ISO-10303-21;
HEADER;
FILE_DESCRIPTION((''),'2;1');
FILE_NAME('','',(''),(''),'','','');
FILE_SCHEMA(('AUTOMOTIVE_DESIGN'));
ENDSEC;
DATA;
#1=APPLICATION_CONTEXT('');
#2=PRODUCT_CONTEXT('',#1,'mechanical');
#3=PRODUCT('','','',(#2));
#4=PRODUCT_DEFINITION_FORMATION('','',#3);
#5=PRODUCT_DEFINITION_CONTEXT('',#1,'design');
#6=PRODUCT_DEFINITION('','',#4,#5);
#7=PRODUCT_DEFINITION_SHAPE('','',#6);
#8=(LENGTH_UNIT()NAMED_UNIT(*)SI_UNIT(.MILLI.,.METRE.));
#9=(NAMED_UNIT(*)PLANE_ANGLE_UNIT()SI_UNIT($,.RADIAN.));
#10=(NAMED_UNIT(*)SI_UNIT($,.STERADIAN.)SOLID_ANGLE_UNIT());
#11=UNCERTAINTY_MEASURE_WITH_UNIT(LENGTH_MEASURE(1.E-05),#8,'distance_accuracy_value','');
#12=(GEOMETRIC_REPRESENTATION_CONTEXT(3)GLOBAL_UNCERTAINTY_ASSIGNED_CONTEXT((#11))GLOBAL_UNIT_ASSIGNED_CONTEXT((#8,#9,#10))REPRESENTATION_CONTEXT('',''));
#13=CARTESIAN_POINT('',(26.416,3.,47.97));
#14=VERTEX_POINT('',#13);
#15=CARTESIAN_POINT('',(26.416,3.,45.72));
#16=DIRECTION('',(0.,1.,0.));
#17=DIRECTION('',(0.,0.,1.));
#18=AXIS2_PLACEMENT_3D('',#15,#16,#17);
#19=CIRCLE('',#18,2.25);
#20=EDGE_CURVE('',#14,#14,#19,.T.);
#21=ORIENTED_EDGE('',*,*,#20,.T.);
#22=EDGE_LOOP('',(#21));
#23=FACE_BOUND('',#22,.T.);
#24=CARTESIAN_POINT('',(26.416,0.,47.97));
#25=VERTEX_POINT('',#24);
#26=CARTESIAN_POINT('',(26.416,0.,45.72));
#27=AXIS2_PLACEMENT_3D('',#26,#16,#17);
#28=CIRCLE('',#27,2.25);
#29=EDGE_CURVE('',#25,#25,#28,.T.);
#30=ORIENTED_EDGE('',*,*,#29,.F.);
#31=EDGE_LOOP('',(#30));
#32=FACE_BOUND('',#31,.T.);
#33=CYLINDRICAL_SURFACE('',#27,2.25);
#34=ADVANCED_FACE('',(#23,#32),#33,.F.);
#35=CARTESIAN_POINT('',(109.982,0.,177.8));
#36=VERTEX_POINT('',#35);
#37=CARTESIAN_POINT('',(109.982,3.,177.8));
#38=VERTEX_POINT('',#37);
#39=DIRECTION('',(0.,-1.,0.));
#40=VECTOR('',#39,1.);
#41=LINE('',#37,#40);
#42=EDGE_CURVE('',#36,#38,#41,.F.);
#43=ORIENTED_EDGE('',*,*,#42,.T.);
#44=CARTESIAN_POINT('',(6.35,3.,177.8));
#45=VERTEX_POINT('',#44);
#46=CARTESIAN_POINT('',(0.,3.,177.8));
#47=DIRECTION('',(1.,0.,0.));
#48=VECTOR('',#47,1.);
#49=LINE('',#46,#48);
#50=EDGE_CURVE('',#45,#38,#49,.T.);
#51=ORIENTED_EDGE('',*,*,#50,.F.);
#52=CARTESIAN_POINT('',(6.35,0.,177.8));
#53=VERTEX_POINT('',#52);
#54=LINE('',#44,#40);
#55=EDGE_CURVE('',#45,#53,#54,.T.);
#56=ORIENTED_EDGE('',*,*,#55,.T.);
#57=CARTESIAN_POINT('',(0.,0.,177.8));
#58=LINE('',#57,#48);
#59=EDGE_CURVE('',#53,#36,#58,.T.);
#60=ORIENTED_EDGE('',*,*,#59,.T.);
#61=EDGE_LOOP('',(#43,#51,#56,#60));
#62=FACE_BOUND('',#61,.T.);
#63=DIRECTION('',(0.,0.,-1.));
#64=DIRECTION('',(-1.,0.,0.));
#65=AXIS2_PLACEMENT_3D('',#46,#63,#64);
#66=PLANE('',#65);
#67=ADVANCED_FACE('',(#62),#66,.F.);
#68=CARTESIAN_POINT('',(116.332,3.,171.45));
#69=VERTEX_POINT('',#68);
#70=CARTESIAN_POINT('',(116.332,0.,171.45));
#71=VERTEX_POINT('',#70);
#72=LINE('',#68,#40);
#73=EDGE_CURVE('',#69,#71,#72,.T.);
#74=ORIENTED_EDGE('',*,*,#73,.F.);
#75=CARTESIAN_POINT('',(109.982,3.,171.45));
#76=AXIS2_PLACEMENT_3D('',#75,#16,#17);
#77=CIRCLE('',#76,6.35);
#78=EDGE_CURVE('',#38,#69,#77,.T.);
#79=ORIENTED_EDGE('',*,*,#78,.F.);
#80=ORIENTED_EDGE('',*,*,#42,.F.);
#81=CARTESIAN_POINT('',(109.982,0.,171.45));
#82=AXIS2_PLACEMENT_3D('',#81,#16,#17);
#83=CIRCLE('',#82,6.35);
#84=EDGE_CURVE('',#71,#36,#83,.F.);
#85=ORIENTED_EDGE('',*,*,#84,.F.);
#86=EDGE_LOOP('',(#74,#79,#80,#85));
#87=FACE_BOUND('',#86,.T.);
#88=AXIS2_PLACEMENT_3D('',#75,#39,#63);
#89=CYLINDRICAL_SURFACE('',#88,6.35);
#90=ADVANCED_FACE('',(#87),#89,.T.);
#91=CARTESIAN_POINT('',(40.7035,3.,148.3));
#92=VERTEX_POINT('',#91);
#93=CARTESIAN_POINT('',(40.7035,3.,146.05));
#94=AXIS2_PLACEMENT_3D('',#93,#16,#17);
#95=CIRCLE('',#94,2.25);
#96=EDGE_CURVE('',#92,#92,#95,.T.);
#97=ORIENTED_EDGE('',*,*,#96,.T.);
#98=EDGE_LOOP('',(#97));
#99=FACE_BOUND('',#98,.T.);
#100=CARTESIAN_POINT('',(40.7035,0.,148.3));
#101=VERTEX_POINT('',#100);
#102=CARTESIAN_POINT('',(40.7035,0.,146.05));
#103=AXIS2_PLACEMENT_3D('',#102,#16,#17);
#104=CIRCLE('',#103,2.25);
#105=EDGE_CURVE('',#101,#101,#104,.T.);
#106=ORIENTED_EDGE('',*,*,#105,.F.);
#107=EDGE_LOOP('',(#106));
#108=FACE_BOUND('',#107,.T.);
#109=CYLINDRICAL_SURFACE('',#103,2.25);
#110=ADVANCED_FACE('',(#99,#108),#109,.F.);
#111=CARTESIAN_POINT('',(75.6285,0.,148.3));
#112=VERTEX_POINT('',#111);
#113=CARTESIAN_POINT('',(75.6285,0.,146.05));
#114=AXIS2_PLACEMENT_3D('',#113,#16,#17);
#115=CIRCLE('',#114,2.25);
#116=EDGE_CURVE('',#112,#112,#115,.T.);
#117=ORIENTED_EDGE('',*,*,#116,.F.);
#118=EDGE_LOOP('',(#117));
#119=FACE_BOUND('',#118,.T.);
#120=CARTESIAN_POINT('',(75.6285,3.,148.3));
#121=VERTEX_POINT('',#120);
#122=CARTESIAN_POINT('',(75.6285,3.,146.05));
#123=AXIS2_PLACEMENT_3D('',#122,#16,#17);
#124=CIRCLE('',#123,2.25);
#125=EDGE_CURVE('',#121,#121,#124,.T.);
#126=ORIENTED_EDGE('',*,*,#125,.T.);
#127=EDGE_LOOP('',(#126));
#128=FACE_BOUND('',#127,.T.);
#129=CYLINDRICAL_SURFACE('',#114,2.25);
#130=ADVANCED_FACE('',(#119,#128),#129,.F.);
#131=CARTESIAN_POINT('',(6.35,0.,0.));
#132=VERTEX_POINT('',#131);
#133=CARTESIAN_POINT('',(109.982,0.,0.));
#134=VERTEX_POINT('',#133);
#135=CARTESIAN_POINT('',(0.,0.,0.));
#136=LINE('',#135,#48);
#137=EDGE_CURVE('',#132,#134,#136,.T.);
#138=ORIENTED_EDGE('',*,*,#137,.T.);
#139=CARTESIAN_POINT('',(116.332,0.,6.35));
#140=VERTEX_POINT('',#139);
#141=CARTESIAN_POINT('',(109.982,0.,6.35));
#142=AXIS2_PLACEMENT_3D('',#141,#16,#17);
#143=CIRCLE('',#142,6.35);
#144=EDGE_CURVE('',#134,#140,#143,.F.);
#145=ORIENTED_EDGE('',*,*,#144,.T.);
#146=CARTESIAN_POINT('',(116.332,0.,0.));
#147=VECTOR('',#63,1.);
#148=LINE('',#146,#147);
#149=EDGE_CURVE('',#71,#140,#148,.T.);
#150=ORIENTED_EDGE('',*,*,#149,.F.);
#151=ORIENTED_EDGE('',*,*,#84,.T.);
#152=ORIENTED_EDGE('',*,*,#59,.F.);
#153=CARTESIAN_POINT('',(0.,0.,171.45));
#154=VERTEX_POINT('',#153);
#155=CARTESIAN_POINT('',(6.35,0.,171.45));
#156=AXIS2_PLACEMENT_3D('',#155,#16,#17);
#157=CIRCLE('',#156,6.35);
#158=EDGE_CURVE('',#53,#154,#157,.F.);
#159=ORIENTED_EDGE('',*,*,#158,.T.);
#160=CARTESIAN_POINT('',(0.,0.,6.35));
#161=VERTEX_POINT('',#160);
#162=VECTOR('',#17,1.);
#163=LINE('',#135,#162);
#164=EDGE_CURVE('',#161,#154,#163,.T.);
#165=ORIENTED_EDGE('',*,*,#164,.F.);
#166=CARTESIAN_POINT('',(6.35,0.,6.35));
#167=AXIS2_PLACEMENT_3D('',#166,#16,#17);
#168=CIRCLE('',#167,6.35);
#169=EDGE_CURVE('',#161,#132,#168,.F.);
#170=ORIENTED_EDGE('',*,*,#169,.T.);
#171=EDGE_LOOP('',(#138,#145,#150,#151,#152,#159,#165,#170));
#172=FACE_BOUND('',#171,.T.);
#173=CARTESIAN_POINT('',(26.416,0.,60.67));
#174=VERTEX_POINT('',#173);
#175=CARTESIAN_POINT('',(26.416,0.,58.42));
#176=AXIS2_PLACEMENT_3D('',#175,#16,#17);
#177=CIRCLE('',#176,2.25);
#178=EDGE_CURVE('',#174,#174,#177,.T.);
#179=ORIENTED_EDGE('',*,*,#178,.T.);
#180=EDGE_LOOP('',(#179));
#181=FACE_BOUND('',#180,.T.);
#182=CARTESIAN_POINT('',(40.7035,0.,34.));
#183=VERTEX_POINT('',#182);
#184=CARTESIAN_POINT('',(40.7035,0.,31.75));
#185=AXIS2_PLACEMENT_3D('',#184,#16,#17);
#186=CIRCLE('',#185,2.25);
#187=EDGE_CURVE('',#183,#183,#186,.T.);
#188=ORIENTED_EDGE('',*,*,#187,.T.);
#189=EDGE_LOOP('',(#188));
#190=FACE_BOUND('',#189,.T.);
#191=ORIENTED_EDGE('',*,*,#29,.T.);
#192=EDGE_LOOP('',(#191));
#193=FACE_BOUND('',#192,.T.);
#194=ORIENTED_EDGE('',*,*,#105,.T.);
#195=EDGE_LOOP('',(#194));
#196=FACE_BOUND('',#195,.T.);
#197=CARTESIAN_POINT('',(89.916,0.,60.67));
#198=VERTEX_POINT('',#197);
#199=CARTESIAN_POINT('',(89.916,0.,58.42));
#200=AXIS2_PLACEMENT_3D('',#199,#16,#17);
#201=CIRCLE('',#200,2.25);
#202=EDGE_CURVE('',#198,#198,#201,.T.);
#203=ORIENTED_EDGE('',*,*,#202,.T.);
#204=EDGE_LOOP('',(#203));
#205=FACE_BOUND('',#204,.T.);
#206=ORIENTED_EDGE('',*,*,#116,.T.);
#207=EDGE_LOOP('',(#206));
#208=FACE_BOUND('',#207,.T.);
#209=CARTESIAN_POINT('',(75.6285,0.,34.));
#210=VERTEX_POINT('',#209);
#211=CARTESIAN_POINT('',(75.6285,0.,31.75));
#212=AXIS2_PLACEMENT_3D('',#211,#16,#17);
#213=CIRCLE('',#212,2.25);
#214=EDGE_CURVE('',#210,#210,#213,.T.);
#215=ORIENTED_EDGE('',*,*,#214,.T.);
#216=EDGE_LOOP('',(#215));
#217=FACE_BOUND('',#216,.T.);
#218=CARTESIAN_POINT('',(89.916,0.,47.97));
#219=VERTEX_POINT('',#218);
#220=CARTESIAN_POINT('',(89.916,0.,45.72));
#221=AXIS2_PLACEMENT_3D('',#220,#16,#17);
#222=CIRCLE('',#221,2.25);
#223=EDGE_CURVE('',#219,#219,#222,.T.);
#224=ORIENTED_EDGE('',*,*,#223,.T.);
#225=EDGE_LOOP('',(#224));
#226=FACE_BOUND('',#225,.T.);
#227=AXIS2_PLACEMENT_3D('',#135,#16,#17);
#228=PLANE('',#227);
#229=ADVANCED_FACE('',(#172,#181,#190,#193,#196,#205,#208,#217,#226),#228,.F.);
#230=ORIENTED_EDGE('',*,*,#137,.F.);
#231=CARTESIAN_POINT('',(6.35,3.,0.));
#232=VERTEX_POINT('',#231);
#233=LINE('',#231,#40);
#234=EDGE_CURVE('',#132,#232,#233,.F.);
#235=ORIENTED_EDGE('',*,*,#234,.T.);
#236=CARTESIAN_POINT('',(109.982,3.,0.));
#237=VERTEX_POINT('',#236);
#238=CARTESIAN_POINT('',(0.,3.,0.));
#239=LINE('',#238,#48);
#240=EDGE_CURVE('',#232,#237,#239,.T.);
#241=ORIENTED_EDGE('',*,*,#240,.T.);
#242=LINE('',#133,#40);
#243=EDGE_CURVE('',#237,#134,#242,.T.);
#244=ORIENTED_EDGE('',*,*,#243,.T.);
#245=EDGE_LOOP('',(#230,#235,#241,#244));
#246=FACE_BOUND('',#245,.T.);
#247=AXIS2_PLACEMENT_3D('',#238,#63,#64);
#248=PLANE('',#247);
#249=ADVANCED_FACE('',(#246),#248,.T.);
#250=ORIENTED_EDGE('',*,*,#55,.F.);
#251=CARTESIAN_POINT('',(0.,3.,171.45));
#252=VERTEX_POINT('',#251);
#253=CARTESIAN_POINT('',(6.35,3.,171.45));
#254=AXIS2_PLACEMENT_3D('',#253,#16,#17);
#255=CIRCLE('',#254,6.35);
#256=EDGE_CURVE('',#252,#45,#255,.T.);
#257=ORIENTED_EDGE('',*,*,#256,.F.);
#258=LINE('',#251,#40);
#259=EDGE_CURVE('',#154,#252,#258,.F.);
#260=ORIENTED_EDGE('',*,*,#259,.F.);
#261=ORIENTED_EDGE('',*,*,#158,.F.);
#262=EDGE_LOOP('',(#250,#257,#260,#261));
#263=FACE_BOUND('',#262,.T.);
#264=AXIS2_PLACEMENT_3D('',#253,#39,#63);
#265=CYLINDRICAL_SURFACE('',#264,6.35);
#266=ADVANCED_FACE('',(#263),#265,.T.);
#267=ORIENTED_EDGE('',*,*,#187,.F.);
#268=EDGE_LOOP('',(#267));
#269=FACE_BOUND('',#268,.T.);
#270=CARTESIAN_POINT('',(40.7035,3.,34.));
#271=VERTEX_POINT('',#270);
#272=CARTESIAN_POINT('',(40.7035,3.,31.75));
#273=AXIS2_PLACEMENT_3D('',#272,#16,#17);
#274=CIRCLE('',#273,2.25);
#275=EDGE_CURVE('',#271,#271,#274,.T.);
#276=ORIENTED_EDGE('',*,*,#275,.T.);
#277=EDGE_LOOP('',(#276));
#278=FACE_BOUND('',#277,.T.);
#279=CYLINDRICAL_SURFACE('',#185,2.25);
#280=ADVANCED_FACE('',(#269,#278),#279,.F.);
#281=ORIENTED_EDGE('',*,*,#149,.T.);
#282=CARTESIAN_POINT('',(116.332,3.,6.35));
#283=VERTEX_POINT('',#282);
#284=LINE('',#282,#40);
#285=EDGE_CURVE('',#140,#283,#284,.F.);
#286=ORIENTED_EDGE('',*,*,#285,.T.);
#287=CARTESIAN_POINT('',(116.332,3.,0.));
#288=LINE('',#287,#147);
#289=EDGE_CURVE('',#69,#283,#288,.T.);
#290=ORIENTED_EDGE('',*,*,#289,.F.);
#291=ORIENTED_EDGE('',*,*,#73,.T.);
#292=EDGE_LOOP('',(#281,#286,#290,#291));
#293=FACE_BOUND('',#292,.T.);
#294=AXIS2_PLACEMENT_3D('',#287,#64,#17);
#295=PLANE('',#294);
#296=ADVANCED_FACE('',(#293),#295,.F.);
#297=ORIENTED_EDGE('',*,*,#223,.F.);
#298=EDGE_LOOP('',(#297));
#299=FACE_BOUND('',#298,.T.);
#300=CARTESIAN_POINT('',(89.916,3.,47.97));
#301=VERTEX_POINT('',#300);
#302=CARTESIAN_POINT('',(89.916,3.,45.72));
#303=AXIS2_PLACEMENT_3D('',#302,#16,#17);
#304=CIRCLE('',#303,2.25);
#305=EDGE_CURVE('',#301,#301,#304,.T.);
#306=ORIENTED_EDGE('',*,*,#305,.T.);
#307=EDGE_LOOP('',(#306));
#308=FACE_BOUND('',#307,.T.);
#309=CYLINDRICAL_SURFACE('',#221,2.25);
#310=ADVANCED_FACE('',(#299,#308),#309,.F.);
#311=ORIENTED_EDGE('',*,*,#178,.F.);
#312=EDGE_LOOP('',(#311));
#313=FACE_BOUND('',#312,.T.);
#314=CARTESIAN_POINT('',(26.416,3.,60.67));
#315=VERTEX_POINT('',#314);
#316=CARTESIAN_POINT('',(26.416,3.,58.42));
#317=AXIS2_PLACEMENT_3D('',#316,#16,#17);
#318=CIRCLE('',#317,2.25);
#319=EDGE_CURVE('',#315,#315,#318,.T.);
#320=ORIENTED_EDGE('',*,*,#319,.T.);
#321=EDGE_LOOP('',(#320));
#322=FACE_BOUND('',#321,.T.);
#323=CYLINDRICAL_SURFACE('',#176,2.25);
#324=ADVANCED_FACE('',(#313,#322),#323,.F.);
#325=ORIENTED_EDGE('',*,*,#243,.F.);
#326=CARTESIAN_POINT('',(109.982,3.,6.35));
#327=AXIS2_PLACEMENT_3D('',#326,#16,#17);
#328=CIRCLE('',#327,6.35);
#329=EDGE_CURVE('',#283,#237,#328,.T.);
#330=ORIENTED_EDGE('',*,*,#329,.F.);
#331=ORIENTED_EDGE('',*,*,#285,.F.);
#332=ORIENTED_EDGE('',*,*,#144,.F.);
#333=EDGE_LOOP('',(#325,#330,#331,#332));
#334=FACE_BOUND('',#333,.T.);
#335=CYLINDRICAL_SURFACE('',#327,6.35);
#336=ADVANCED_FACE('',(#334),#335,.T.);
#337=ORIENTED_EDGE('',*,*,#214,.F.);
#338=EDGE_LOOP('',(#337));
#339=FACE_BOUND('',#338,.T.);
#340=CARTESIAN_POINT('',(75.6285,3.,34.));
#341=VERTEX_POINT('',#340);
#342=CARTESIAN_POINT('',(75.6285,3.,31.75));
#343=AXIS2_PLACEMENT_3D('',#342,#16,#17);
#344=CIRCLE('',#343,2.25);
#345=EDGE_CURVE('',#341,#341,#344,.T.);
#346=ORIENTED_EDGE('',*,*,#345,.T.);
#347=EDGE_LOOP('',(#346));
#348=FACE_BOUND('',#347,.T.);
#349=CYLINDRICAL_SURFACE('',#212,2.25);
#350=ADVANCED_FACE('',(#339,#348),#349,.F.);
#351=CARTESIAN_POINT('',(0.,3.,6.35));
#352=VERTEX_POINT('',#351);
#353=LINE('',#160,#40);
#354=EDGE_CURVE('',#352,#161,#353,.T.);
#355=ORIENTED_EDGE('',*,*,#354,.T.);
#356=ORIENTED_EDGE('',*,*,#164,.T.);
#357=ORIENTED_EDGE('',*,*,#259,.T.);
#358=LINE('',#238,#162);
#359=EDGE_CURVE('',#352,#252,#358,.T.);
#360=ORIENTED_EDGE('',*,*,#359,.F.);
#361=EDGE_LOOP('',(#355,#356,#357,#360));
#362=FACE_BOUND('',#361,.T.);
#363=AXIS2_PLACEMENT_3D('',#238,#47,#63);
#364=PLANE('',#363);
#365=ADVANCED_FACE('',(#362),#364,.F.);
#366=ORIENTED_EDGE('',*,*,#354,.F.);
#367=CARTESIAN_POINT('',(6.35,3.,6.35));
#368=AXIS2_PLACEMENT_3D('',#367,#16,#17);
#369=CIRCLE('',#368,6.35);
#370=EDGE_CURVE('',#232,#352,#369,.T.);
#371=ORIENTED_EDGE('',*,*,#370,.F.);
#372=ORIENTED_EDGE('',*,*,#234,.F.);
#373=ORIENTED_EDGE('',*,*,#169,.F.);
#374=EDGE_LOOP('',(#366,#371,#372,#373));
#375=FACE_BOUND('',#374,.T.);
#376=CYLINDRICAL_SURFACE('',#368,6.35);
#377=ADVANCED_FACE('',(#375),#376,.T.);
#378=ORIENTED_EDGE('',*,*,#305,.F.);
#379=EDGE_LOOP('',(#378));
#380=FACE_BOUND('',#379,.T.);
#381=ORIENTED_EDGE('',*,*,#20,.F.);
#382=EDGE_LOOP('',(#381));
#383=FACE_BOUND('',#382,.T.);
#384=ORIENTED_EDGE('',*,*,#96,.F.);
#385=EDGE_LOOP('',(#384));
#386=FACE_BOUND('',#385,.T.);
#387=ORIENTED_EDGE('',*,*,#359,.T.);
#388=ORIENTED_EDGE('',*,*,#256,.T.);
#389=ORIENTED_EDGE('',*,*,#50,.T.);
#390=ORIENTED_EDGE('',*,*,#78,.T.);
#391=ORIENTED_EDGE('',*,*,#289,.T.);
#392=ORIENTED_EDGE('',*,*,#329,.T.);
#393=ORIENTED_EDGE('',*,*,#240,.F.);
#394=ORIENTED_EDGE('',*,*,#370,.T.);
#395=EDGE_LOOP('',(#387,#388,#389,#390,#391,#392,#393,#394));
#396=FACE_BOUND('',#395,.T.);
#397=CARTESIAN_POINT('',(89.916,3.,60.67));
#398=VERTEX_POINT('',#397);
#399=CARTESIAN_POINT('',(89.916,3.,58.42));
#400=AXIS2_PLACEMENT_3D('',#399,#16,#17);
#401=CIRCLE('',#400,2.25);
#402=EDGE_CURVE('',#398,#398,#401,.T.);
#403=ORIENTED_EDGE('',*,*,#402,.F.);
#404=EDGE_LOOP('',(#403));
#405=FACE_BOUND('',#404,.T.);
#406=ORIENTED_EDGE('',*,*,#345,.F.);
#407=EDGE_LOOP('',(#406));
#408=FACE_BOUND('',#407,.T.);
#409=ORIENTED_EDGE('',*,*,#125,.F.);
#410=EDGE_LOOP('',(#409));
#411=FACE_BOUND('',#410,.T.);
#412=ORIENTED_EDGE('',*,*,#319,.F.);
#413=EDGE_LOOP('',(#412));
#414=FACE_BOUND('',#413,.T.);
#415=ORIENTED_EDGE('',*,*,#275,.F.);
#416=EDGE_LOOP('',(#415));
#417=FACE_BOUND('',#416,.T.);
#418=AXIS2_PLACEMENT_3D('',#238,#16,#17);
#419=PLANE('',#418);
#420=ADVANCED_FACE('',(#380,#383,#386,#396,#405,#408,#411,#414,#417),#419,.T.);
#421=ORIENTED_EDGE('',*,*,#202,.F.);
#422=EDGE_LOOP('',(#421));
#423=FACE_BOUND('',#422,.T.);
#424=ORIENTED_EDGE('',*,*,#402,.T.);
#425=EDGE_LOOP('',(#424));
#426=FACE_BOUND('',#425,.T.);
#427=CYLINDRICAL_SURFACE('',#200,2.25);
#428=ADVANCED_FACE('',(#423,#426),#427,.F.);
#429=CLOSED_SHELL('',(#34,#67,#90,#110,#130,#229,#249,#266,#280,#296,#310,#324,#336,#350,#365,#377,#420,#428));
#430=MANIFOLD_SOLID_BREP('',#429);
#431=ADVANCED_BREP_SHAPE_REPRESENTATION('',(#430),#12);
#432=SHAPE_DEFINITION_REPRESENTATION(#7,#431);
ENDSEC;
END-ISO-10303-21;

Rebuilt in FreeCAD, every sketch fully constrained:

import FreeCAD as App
import Part
import Sketcher
Q = App.Units.Quantity


def edges_at(feature, points):
    """Names of the edges that pass closest to the given points."""
    edges = feature.Shape.Edges
    near = lambda p: min(range(len(edges)), key=lambda i: edges[i].distToShape(Part.Vertex(*p))[0])
    return sorted({f"Edge{near(p) + 1}" for p in points})


def add_polygon(sketch, points):
    """Adds a closed chain of lines whose ends are joined by coincident constraints."""
    first, n = sketch.GeometryCount, len(points)
    for a, b in zip(points, points[1:] + points[:1]):
        sketch.addGeometry(Part.LineSegment(App.Vector(*a, 0), App.Vector(*b, 0)), False)
    for i in range(n):
        sketch.addConstraint(Sketcher.Constraint("Coincident", first + i, 2, first + (i + 1) % n, 1))

doc = App.newDocument("Part")
body = doc.addObject("PartDesign::Body", "Body")

sketch1 = body.newObject("Sketcher::SketchObject", "Sketch")
sketch1.AttachmentSupport = (doc.getObject("XZ_Plane"), [""])
sketch1.MapMode = "FlatFace"
add_polygon(sketch1, [(0, 0), (0, 178), (116, 178), (116, 0)])
sketch1.addConstraint([
    Sketcher.Constraint("Vertical", 0),
    Sketcher.Constraint("Horizontal", 1),
    Sketcher.Constraint("Vertical", 2),
    Sketcher.Constraint("Horizontal", 3),
    Sketcher.Constraint("Coincident", 3, 2, -1, 1),
    Sketcher.Constraint("DistanceY", 0, 1, 0, 2, Q("7 in")),
    Sketcher.Constraint("DistanceX", 1, 1, 1, 2, Q("4.58 in")),
])
pad1 = body.newObject("PartDesign::Pad", "Pad")
pad1.Profile = sketch1
pad1.Length = 3
pad1.Reversed = True

sketch2 = body.newObject("Sketcher::SketchObject", "Sketch001")
sketch2.AttachmentSupport = (doc.getObject("XZ_Plane"), [""])
sketch2.MapMode = "FlatFace"
sketch2.AttachmentOffset = App.Placement(App.Vector(0, 0, -3), App.Rotation())
sketch2.addGeometry([
    Part.Circle(App.Vector(26.4, 45.7, 0), App.Vector(0, 0, 1), 2.2),
    Part.Circle(App.Vector(26.4, 58.4, 0), App.Vector(0, 0, 1), 2.2),
    Part.Circle(App.Vector(89.9, 45.7, 0), App.Vector(0, 0, 1), 2.2),
    Part.Circle(App.Vector(89.9, 58.4, 0), App.Vector(0, 0, 1), 2.2),
], False)
sketch2.addConstraint([
    Sketcher.Constraint("Equal", 0, 1),
    Sketcher.Constraint("Equal", 1, 2),
    Sketcher.Constraint("Equal", 2, 3),
    Sketcher.Constraint("Horizontal", 0, 3, 2, 3),
    Sketcher.Constraint("Horizontal", 1, 3, 3, 3),
    Sketcher.Constraint("Vertical", 0, 3, 1, 3),
    Sketcher.Constraint("Vertical", 2, 3, 3, 3),
    Sketcher.Constraint("DistanceY", -1, 1, 0, 3, Q("1.8 in")),
    Sketcher.Constraint("DistanceY", -1, 1, 1, 3, Q("2.3 in")),
    Sketcher.Constraint("DistanceX", 0, 3, 2, 3, Q("2.5 in")),
    Sketcher.Constraint("Diameter", 0, 4.5),
    Sketcher.Constraint("DistanceX", -1, 1, 0, 3, Q("1.04 in")),
])
pocket1 = body.newObject("PartDesign::Pocket", "Pocket")
pocket1.Profile = sketch2
pocket1.Type = "ThroughAll"
pocket1.Midplane = True

sketch3 = body.newObject("Sketcher::SketchObject", "Sketch002")
sketch3.AttachmentSupport = (doc.getObject("XZ_Plane"), [""])
sketch3.MapMode = "FlatFace"
sketch3.AttachmentOffset = App.Placement(App.Vector(0, 0, -3), App.Rotation())
sketch3.addGeometry([
    Part.Circle(App.Vector(40.7, 31.8, 0), App.Vector(0, 0, 1), 2.2),
    Part.Circle(App.Vector(75.6, 31.8, 0), App.Vector(0, 0, 1), 2.2),
    Part.Circle(App.Vector(40.7, 146.1, 0), App.Vector(0, 0, 1), 2.2),
    Part.Circle(App.Vector(75.6, 146.1, 0), App.Vector(0, 0, 1), 2.2),
], False)
sketch3.addConstraint([
    Sketcher.Constraint("Equal", 0, 1),
    Sketcher.Constraint("Equal", 1, 2),
    Sketcher.Constraint("Equal", 2, 3),
    Sketcher.Constraint("Horizontal", 0, 3, 1, 3),
    Sketcher.Constraint("Horizontal", 2, 3, 3, 3),
    Sketcher.Constraint("Vertical", 0, 3, 2, 3),
    Sketcher.Constraint("Vertical", 1, 3, 3, 3),
    Sketcher.Constraint("DistanceY", 0, 3, 2, 3, Q("4.5 in")),
    Sketcher.Constraint("Diameter", 0, 4.5),
    Sketcher.Constraint("DistanceY", -1, 1, 0, 3, Q("1.25 in")),
    Sketcher.Constraint("DistanceX", 0, 3, 1, 3, Q("1.375 in")),
    Sketcher.Constraint("DistanceX", -1, 1, 0, 3, Q("1.6025 in")),
])
pocket2 = body.newObject("PartDesign::Pocket", "Pocket001")
pocket2.Profile = sketch3
pocket2.Type = "ThroughAll"
pocket2.Midplane = True
doc.recompute()

fillet = body.newObject("PartDesign::Fillet", "Fillet")
fillet.Base = (pocket2, edges_at(pocket2, [
    (116.332, 1.5, 0),
    (116.332, 1.5, 177.8),
    (0, 1.5, 177.8),
    (0, 1.5, 0),
]))
fillet.Radius = Q("0.25 in")

doc.recompute()
